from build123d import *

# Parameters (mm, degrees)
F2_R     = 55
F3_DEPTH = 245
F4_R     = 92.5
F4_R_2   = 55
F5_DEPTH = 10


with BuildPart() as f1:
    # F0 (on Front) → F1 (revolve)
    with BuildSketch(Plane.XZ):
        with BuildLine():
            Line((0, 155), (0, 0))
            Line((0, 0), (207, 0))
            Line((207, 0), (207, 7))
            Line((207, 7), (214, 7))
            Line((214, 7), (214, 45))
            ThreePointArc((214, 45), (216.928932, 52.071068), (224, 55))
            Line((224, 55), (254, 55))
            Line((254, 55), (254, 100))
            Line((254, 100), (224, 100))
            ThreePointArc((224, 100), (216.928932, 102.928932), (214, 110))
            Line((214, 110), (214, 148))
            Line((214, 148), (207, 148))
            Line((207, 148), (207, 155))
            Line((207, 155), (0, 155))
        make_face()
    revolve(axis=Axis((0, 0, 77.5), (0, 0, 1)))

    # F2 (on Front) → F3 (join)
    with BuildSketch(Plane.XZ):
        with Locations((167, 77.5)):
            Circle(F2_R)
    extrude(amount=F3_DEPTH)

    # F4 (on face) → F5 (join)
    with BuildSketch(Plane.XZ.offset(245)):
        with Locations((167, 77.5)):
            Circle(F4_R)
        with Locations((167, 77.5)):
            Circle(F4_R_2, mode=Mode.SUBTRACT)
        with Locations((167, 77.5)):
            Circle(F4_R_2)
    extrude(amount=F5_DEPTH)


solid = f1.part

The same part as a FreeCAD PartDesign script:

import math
import FreeCAD as App
import Part
import Sketcher
from FreeCAD import Vector

doc = App.newDocument("Part")
body = doc.addObject("PartDesign::Body", "Body")

# Sketch on XZ plane
sketch1 = body.newObject("Sketcher::SketchObject", "Sketch")
sketch1.AttachmentSupport = (doc.getObject("XZ_Plane"), [""])
sketch1.MapMode = "FlatFace"
sketch1.addGeometry([
    Part.LineSegment(Vector(0, 155, 0), Vector(0, 0, 0)),  # 0
    Part.LineSegment(Vector(0, 0, 0), Vector(207, 0, 0)),  # 1
    Part.LineSegment(Vector(207, 0, 0), Vector(207, 7, 0)),  # 2
    Part.LineSegment(Vector(207, 7, 0), Vector(214, 7, 0)),  # 3
    Part.LineSegment(Vector(214, 7, 0), Vector(214, 45, 0)),  # 4
    Part.ArcOfCircle(Part.Circle(Vector(224, 45, 0), Vector(0, 0, 1), 10), math.radians(90), math.radians(180)),  # 5
    Part.LineSegment(Vector(224, 55, 0), Vector(254, 55, 0)),  # 6
    Part.LineSegment(Vector(254, 55, 0), Vector(254, 100, 0)),  # 7
    Part.LineSegment(Vector(254, 100, 0), Vector(224, 100, 0)),  # 8
    Part.ArcOfCircle(Part.Circle(Vector(224, 110, 0), Vector(0, 0, 1), 10), math.radians(180), math.radians(270)),  # 9
    Part.LineSegment(Vector(214, 110, 0), Vector(214, 148, 0)),  # 10
    Part.LineSegment(Vector(214, 148, 0), Vector(207, 148, 0)),  # 11
    Part.LineSegment(Vector(207, 148, 0), Vector(207, 155, 0)),  # 12
    Part.LineSegment(Vector(207, 155, 0), Vector(0, 155, 0)),  # 13
], False)
sketch1.addConstraint([
    Sketcher.Constraint("Coincident", 0, 2, 1, 1),
    Sketcher.Constraint("Coincident", 1, 2, 2, 1),
    Sketcher.Constraint("Coincident", 2, 2, 3, 1),
    Sketcher.Constraint("Coincident", 3, 2, 4, 1),
    Sketcher.Constraint("Tangent", 4, 2, 5, 2),
    Sketcher.Constraint("Tangent", 5, 1, 6, 1),
    Sketcher.Constraint("Coincident", 6, 2, 7, 1),
    Sketcher.Constraint("Coincident", 7, 2, 8, 1),
    Sketcher.Constraint("Tangent", 8, 2, 9, 2),
    Sketcher.Constraint("Tangent", 9, 1, 10, 1),
    Sketcher.Constraint("Coincident", 10, 2, 11, 1),
    Sketcher.Constraint("Coincident", 11, 2, 12, 1),
    Sketcher.Constraint("Coincident", 12, 2, 13, 1),
    Sketcher.Constraint("Coincident", 13, 2, 0, 1),
    Sketcher.Constraint("Vertical", 0),
    Sketcher.Constraint("Horizontal", 1),
    Sketcher.Constraint("Vertical", 2),
    Sketcher.Constraint("Horizontal", 3),
    Sketcher.Constraint("Vertical", 4),
    Sketcher.Constraint("Horizontal", 6),
    Sketcher.Constraint("Vertical", 7),
    Sketcher.Constraint("Horizontal", 8),
    Sketcher.Constraint("Vertical", 10),
    Sketcher.Constraint("Horizontal", 11),
    Sketcher.Constraint("Vertical", 12),
    Sketcher.Constraint("Horizontal", 13),
    Sketcher.Constraint("Coincident", 0, 2, -1, 1),
    Sketcher.Constraint("Equal", 5, 9),
    Sketcher.Constraint("Vertical", 5, 3, 9, 3),
    Sketcher.Constraint("Vertical", 2, 2, 11, 2),
    Sketcher.Constraint("Equal", 11, 2),
    Sketcher.Constraint("Equal", 4, 10),
    Sketcher.Constraint("Equal", 2, 12),
    Sketcher.Constraint("Radius", 5, 9.999999),
    Sketcher.Constraint("DistanceX", 1, 1, 1, 2, 207.0),
    Sketcher.Constraint("DistanceX", 3, 1, 3, 2, 7.0),
    Sketcher.Constraint("DistanceX", 6, 1, 6, 2, 30.0),
    Sketcher.Constraint("DistanceY", 0, 2, 0, 1, 155.0),
    Sketcher.Constraint("DistanceY", 4, 1, 4, 2, 38.0),
])
revolution = body.newObject("PartDesign::Revolution", "Revolution")
revolution.Profile = sketch1
revolution.ReferenceAxis = (sketch1, ["V_Axis"])
revolution.Angle = 360

# Sketch on XZ plane
sketch2 = body.newObject("Sketcher::SketchObject", "Sketch001")
sketch2.AttachmentSupport = (doc.getObject("XZ_Plane"), [""])
sketch2.MapMode = "FlatFace"
sketch2.addGeometry(Part.Circle(Vector(167, 78, 0), Vector(0, 0, 1), 55), False)
sketch2.addConstraint([
    Sketcher.Constraint("Diameter", 0, 110.0),
    Sketcher.Constraint("DistanceX", -1, 1, 0, 3, 167.0),
    Sketcher.Constraint("DistanceY", -1, 1, 0, 3, 77.5),
])
pad1 = body.newObject("PartDesign::Pad", "Pad")
pad1.Profile = sketch2
pad1.Length = 245

# Sketch on XZ plane
sketch3 = body.newObject("Sketcher::SketchObject", "Sketch002")
sketch3.AttachmentSupport = (doc.getObject("XZ_Plane"), [""])
sketch3.MapMode = "FlatFace"
sketch3.AttachmentOffset = App.Placement(Vector(0, 0, 245), App.Rotation())
sketch3.addGeometry(Part.Circle(Vector(167, 78, 0), Vector(0, 0, 1), 92), False)
sketch3.addConstraint([
    Sketcher.Constraint("Diameter", 0, 185.0),
    Sketcher.Constraint("DistanceX", -1, 1, 0, 3, 167.0),
    Sketcher.Constraint("DistanceY", -1, 1, 0, 3, 77.5),
])
pad2 = body.newObject("PartDesign::Pad", "Pad001")
pad2.Profile = sketch3
pad2.Length = 10

doc.recompute()
